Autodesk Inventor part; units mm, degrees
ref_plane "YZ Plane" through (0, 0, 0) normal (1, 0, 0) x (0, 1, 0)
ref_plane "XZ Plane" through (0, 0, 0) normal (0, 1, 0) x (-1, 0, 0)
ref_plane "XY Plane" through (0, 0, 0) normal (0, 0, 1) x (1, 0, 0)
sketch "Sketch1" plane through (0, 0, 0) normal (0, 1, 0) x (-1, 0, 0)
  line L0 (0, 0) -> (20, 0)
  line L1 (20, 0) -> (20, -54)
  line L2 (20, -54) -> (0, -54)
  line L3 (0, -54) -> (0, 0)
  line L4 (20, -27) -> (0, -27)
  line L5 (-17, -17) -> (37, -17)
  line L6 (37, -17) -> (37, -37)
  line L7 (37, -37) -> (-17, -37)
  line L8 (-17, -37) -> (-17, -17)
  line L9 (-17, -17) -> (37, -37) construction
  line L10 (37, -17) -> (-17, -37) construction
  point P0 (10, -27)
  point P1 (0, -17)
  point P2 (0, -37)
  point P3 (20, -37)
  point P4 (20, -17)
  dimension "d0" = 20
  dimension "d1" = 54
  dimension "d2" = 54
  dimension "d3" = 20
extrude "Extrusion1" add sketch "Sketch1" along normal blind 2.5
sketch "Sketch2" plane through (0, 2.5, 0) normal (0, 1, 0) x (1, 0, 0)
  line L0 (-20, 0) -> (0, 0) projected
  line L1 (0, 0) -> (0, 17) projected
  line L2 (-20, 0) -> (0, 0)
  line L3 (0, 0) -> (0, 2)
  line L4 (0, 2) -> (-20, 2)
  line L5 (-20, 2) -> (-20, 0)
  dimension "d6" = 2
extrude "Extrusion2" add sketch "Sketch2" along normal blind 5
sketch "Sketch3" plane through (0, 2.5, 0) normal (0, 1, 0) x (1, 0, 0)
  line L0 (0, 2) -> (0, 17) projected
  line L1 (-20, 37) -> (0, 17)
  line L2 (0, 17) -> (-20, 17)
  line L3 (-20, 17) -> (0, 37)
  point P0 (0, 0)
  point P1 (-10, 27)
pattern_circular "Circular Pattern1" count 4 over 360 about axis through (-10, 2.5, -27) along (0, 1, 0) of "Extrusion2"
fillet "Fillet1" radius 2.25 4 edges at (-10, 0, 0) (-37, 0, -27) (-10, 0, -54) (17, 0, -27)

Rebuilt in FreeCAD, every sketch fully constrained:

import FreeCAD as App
import Part
import Sketcher
from FreeCAD import Vector
Q = App.Units.Quantity


def edges_at(feature, points):
    """Names of the edges that pass closest to the given points."""
    edges = feature.Shape.Edges
    near = lambda p: min(range(len(edges)), key=lambda i: edges[i].distToShape(Part.Vertex(*p))[0])
    return sorted({f"Edge{near(p) + 1}" for p in points})

doc = App.newDocument("Part")
body = doc.addObject("PartDesign::Body", "Body")

sketch1 = body.newObject("Sketcher::SketchObject", "Sketch")
sketch1.AttachmentSupport = (doc.getObject("XZ_Plane"), [""])
sketch1.MapMode = "FlatFace"
sketch1.addGeometry(Part.LineSegment(Vector(-20, 0, 0), Vector(0, 0, 0)), False)
sketch1.addGeometry(Part.LineSegment(Vector(0, 0, 0), Vector(0, -17, 0)), False)
sketch1.addGeometry(Part.LineSegment(Vector(0, -17, 0), Vector(17, -17, 0)), False)
sketch1.addGeometry(Part.LineSegment(Vector(17, -17, 0), Vector(17, -37, 0)), False)
sketch1.addGeometry(Part.LineSegment(Vector(17, -37, 0), Vector(0, -37, 0)), False)
sketch1.addGeometry(Part.LineSegment(Vector(0, -37, 0), Vector(0, -54, 0)), False)
sketch1.addGeometry(Part.LineSegment(Vector(0, -54, 0), Vector(-20, -54, 0)), False)
sketch1.addGeometry(Part.LineSegment(Vector(-20, -54, 0), Vector(-20, -37, 0)), False)
sketch1.addGeometry(Part.LineSegment(Vector(-20, -37, 0), Vector(-37, -37, 0)), False)
sketch1.addGeometry(Part.LineSegment(Vector(-37, -37, 0), Vector(-37, -17, 0)), False)
sketch1.addGeometry(Part.LineSegment(Vector(-37, -17, 0), Vector(-20, -17, 0)), False)
sketch1.addGeometry(Part.LineSegment(Vector(-20, -17, 0), Vector(-20, 0, 0)), False)
sketch1.addConstraint(Sketcher.Constraint("Coincident", 0, 2, 1, 1))
sketch1.addConstraint(Sketcher.Constraint("Coincident", 1, 2, 2, 1))
sketch1.addConstraint(Sketcher.Constraint("Coincident", 2, 2, 3, 1))
sketch1.addConstraint(Sketcher.Constraint("Coincident", 3, 2, 4, 1))
sketch1.addConstraint(Sketcher.Constraint("Coincident", 4, 2, 5, 1))
sketch1.addConstraint(Sketcher.Constraint("Coincident", 5, 2, 6, 1))
sketch1.addConstraint(Sketcher.Constraint("Coincident", 6, 2, 7, 1))
sketch1.addConstraint(Sketcher.Constraint("Coincident", 7, 2, 8, 1))
sketch1.addConstraint(Sketcher.Constraint("Coincident", 8, 2, 9, 1))
sketch1.addConstraint(Sketcher.Constraint("Coincident", 9, 2, 10, 1))
sketch1.addConstraint(Sketcher.Constraint("Coincident", 10, 2, 11, 1))
sketch1.addConstraint(Sketcher.Constraint("Coincident", 11, 2, 0, 1))
sketch1.addConstraint(Sketcher.Constraint("Horizontal", 0))
sketch1.addConstraint(Sketcher.Constraint("Vertical", 1))
sketch1.addConstraint(Sketcher.Constraint("Horizontal", 2))
sketch1.addConstraint(Sketcher.Constraint("Vertical", 3))
sketch1.addConstraint(Sketcher.Constraint("Horizontal", 4))
sketch1.addConstraint(Sketcher.Constraint("Vertical", 5))
sketch1.addConstraint(Sketcher.Constraint("Horizontal", 6))
sketch1.addConstraint(Sketcher.Constraint("Vertical", 7))
sketch1.addConstraint(Sketcher.Constraint("Horizontal", 8))
sketch1.addConstraint(Sketcher.Constraint("Vertical", 9))
sketch1.addConstraint(Sketcher.Constraint("Horizontal", 10))
sketch1.addConstraint(Sketcher.Constraint("Vertical", 11))
sketch1.addConstraint(Sketcher.Constraint("Coincident", 0, 2, -1, 1))
sketch1.addConstraint(Sketcher.Constraint("PointOnObject", 4, 2, -2))
sketch1.addConstraint(Sketcher.Constraint("Horizontal", 4, 2, 7, 2))
sketch1.addConstraint(Sketcher.Constraint("Horizontal", 2, 2, 9, 2))
sketch1.addConstraint(Sketcher.Constraint("Vertical", 7, 2, 10, 2))
sketch1.addConstraint(Sketcher.Constraint("Equal", 4, 8))
sketch1.addConstraint(Sketcher.Constraint("Equal", 10, 1))
sketch1.addConstraint(Sketcher.Constraint("Equal", 6, 3))
sketch1.addConstraint(Sketcher.Constraint("Equal", 1, 5))
sketch1.addConstraint(Sketcher.Constraint("DistanceX", 0, 1, 0, 2, Q("20 mm")))
sketch1.addConstraint(Sketcher.Constraint("DistanceY", 5, 2, -1, 1, Q("54 mm")))
pad1 = body.newObject("PartDesign::Pad", "Pad")
pad1.Profile = sketch1
pad1.Length = 2.5
pad1.Reversed = True

sketch2 = body.newObject("Sketcher::SketchObject", "Sketch001")
sketch2.AttachmentSupport = (doc.getObject("XZ_Plane"), [""])
sketch2.MapMode = "FlatFace"
sketch2.AttachmentOffset = App.Placement(Vector(0, 0, -2.5), App.Rotation())
sketch2.addGeometry(Part.LineSegment(Vector(-20, -2, 0), Vector(-20, 0, 0)), False)
sketch2.addGeometry(Part.LineSegment(Vector(-20, 0, 0), Vector(0, 0, 0)), False)
sketch2.addGeometry(Part.LineSegment(Vector(0, 0, 0), Vector(0, -2, 0)), False)
sketch2.addGeometry(Part.LineSegment(Vector(0, -2, 0), Vector(-20, -2, 0)), False)
sketch2.addConstraint(Sketcher.Constraint("Coincident", 0, 2, 1, 1))
sketch2.addConstraint(Sketcher.Constraint("Coincident", 1, 2, 2, 1))
sketch2.addConstraint(Sketcher.Constraint("Coincident", 2, 2, 3, 1))
sketch2.addConstraint(Sketcher.Constraint("Coincident", 3, 2, 0, 1))
sketch2.addConstraint(Sketcher.Constraint("Vertical", 0))
sketch2.addConstraint(Sketcher.Constraint("Horizontal", 1))
sketch2.addConstraint(Sketcher.Constraint("Vertical", 2))
sketch2.addConstraint(Sketcher.Constraint("Horizontal", 3))
sketch2.addConstraint(Sketcher.Constraint("Coincident", 1, 2, -1, 1))
sketch2.addConstraint(Sketcher.Constraint("DistanceY", 0, 1, 0, 2, Q("2 mm")))
sketch2.addConstraint(Sketcher.Constraint("DistanceX", 1, 1, 1, 2, Q("20 mm")))
pad2 = body.newObject("PartDesign::Pad", "Pad001")
pad2.Profile = sketch2
pad2.Length = 5
pad2.Reversed = True
doc.recompute()

datumline = body.newObject("PartDesign::Line", "DatumLine")
datumline.Placement = App.Placement(Vector(-10, 0, -27), App.Rotation(Vector(0, 0, 1), Vector(0, 1, 0)))
polarpattern = body.newObject("PartDesign::PolarPattern", "PolarPattern")
polarpattern.Originals = [pad2]
polarpattern.Axis = (datumline, [""])
polarpattern.Angle = 360
polarpattern.Occurrences = 4
body.Tip = polarpattern
doc.recompute()

fillet = body.newObject("PartDesign::Fillet", "Fillet")
fillet.Base = (polarpattern, edges_at(polarpattern, [
    (-10, 0, 0),
    (-37, 0, -27),
    (-10, 0, -54),
    (17, 0, -27),
]))
fillet.Radius = 2.25

doc.recompute()
